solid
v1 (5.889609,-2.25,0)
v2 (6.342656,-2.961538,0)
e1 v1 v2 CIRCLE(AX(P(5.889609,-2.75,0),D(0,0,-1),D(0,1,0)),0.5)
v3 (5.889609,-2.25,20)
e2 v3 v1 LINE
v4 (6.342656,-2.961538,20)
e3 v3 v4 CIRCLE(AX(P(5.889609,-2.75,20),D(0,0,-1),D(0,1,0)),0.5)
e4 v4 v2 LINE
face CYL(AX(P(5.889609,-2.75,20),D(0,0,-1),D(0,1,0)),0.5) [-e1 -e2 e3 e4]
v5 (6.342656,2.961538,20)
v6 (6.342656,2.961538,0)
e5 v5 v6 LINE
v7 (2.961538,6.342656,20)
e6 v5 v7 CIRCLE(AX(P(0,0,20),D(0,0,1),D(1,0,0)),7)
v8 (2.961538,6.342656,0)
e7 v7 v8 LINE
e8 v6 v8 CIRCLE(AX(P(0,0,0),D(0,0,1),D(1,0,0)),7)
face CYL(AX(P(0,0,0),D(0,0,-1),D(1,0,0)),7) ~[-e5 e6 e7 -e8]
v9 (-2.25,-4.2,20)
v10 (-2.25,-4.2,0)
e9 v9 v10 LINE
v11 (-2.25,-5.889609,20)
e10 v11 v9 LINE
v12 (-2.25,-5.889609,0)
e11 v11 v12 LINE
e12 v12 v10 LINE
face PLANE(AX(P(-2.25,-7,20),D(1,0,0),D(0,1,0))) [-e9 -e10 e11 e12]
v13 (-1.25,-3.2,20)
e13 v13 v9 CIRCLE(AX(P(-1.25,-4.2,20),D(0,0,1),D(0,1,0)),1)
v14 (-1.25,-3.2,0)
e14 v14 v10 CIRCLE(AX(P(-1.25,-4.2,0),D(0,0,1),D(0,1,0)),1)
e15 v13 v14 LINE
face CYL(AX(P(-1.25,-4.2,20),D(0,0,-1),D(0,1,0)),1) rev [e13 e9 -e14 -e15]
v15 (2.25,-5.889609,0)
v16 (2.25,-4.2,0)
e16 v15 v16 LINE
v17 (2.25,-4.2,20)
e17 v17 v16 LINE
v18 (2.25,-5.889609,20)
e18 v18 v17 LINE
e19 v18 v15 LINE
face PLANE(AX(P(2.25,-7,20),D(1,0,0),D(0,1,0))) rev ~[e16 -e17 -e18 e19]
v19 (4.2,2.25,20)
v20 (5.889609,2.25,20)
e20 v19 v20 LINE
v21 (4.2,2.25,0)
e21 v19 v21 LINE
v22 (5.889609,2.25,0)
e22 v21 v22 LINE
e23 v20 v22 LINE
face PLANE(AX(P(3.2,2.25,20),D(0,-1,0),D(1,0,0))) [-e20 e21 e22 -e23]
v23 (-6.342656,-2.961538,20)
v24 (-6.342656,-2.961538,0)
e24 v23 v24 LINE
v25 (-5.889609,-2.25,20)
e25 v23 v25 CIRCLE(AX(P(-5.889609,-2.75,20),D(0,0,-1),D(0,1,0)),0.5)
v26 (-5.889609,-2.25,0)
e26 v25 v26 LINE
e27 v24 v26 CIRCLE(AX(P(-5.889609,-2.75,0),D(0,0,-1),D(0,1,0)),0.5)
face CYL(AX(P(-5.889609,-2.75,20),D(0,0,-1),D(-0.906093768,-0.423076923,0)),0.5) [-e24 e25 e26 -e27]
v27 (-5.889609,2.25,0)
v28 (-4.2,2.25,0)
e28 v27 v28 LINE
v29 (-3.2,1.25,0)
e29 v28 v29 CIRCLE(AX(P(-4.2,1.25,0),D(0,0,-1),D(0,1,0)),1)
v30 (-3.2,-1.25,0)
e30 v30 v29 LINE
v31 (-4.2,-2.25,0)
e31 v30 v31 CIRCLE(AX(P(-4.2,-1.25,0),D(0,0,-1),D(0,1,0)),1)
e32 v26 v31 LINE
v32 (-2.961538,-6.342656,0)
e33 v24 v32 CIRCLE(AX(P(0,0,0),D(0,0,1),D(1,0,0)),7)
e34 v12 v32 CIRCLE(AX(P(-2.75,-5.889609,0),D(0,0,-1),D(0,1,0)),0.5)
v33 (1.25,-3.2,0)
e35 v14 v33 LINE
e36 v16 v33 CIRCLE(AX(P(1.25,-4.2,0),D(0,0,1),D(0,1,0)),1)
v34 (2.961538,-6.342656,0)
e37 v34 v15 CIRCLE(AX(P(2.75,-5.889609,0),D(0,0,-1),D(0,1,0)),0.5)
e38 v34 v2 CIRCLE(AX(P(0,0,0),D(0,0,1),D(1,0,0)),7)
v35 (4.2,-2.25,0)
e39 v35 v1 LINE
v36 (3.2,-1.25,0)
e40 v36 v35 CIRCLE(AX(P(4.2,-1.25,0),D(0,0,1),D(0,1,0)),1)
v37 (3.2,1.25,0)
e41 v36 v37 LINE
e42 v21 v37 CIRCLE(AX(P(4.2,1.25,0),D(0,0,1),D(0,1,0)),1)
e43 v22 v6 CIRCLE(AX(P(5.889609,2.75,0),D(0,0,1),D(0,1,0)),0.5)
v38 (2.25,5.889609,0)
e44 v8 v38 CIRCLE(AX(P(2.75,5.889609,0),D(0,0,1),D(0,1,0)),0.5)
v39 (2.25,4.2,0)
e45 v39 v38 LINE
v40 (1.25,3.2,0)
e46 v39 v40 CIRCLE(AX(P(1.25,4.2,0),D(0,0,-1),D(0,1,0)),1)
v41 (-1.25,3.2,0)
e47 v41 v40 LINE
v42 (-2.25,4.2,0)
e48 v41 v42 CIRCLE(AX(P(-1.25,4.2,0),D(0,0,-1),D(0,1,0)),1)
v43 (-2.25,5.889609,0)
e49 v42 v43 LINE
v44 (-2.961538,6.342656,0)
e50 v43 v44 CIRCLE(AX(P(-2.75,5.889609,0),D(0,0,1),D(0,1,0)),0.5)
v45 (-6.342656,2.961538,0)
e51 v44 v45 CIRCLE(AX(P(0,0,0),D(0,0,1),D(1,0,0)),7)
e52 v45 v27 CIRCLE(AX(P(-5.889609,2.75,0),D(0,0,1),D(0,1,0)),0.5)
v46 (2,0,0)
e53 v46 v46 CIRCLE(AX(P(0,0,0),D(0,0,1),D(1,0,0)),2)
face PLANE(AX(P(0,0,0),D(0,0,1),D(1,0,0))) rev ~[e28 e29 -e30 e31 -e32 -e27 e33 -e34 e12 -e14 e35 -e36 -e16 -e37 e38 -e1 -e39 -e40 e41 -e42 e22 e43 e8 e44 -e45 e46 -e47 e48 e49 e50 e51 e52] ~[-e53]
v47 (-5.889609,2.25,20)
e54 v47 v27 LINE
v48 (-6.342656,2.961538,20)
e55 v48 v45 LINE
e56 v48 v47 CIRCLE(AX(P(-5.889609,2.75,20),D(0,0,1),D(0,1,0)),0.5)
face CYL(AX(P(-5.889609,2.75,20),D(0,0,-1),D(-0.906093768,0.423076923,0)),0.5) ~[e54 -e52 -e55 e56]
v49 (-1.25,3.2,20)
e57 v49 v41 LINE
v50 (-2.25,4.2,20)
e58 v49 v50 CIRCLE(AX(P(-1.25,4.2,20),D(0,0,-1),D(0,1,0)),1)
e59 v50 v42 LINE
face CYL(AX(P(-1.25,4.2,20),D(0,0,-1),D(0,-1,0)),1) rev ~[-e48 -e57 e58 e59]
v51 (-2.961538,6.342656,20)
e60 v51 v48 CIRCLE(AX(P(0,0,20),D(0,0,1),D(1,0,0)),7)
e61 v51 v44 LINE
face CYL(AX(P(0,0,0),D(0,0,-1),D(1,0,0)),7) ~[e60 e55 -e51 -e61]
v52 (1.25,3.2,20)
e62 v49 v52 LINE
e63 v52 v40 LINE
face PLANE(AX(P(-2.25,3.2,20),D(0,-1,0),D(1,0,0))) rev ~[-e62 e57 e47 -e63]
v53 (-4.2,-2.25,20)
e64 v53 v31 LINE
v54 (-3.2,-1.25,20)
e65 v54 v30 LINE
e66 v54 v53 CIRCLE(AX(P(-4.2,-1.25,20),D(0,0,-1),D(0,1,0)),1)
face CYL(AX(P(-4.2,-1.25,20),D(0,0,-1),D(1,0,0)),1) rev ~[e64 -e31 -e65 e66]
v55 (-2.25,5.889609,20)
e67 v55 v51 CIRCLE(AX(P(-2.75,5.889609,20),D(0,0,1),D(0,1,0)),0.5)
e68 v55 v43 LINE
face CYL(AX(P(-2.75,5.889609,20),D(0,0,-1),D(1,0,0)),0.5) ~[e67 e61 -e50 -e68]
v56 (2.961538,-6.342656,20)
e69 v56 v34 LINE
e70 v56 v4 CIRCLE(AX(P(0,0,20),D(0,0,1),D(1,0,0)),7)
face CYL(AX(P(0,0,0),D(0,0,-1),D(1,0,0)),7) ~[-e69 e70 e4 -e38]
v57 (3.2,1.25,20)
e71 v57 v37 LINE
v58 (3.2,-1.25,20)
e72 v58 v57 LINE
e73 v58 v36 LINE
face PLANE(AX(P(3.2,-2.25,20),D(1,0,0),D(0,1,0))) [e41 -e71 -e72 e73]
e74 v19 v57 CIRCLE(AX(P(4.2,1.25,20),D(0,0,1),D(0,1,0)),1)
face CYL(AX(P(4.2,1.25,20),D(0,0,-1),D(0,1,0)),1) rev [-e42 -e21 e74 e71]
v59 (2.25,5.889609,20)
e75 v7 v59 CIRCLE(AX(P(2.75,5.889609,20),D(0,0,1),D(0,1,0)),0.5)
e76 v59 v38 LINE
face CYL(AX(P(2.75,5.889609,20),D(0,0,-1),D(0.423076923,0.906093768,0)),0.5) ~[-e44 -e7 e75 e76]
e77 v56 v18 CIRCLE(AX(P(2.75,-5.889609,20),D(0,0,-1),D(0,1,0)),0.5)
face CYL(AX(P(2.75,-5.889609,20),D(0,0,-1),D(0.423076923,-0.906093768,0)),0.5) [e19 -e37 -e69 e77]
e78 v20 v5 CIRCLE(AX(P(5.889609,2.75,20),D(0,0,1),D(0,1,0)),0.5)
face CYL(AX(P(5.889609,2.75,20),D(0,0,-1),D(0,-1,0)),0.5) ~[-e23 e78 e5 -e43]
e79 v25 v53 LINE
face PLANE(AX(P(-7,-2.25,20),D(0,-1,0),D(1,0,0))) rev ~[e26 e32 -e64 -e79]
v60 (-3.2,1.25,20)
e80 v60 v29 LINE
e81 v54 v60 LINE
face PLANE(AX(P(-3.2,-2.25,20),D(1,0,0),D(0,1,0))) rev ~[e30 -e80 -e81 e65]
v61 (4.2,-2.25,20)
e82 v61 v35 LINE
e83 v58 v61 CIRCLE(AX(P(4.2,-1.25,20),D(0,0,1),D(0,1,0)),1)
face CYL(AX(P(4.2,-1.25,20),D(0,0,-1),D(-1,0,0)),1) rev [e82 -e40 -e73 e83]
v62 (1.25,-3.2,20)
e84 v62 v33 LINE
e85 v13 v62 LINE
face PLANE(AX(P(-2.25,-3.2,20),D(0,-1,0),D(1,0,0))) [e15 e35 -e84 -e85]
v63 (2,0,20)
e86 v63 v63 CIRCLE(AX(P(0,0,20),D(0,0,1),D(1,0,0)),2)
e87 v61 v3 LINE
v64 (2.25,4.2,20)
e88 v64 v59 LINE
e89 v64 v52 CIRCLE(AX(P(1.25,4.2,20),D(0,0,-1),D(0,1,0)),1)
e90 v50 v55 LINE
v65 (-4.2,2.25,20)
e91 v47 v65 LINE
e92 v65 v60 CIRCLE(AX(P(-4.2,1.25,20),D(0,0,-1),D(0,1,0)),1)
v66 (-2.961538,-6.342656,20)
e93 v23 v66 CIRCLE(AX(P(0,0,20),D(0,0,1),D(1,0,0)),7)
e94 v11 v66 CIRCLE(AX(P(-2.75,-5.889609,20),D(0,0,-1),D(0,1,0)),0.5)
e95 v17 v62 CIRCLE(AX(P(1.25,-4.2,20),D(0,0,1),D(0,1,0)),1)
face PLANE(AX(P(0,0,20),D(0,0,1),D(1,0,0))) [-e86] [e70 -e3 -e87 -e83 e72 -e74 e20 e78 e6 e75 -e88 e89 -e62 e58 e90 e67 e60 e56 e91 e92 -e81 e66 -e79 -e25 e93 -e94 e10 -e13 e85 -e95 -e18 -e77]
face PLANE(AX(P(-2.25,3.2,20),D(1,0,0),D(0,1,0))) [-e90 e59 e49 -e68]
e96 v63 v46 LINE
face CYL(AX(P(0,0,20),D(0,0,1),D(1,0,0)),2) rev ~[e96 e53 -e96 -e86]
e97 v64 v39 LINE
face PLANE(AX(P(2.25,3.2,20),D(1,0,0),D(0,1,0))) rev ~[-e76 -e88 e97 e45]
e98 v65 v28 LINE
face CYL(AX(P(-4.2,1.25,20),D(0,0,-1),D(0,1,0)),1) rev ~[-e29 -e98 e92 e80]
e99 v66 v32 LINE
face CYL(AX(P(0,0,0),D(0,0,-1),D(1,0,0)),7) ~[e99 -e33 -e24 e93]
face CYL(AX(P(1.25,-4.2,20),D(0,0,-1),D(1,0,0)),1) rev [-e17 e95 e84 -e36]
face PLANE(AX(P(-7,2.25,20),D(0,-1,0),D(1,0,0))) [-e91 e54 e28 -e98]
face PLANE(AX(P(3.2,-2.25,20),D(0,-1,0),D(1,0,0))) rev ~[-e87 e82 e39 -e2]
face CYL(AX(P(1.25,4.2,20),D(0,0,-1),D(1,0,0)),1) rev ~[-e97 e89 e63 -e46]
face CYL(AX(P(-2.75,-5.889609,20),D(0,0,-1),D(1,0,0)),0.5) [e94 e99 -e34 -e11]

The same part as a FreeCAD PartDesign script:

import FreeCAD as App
import Part
import Sketcher

V = App.Vector


def edges_at(feature, points):
    """Names of the edges that pass closest to the given points."""
    edges = feature.Shape.Edges
    near = lambda p: min(range(len(edges)), key=lambda i: edges[i].distToShape(Part.Vertex(*p))[0])
    return sorted({f"Edge{near(p) + 1}" for p in points})

doc = App.newDocument("Part")
params = doc.addObject("Spreadsheet::Sheet", "Params")
for row, (alias, value) in enumerate([
    ("sketch1_diameter", "14 mm"),
    ("pad1_length", "20 mm"),
    ("sketch2_width", "4.5 mm"),
    ("sketch2_width2", "3.8 mm"),
    ("pocket1_length", "20 mm"),
    ("sketch3_diameter", "4 mm"),
    ("pocket2_length", "20 mm"),
    ("fillet_radius", "1 mm"),
    ("fillet2_radius", "0.5 mm"),
], start=1):
    params.set(f"A{row}", alias)
    params.set(f"B{row}", "=" + value)
    params.setAlias(f"B{row}", alias)

body = doc.addObject("PartDesign::Body", "Body")

sketch1 = body.newObject("Sketcher::SketchObject", "Sketch")
sketch1.AttachmentSupport = (doc.getObject("XY_Plane"), [""])
sketch1.MapMode = "FlatFace"
sketch1.addGeometry(Part.Circle(V(0, 0, 0), V(0, 0, 1), 7), False)
sketch1.addConstraint([
    Sketcher.Constraint("Coincident", 0, 3, -1, 1),
    Sketcher.Constraint("Diameter", 0, 14.0),
])
sketch1.setExpression("Constraints[1]", "Params.sketch1_diameter")
pad1 = body.newObject("PartDesign::Pad", "Pad")
pad1.Profile = sketch1
pad1.setExpression("Length", "Params.pad1_length")

sketch2 = body.newObject("Sketcher::SketchObject", "Sketch001")
sketch2.AttachmentSupport = (doc.getObject("XY_Plane"), [""])
sketch2.MapMode = "FlatFace"
sketch2.AttachmentOffset = App.Placement(V(0, 0, 20), App.Rotation())
sketch2.addGeometry([
    Part.LineSegment(V(-2.25, 7, 0), V(-2.25, 3.2, 0)),
    Part.LineSegment(V(-2.25, 3.2, 0), V(2.25, 3.2, 0)),
    Part.LineSegment(V(2.25, 3.2, 0), V(2.25, 7, 0)),
    Part.LineSegment(V(2.25, 7, 0), V(-2.25, 7, 0)),
    Part.LineSegment(V(3.2, 2.25, 0), V(3.2, -2.25, 0)),
    Part.LineSegment(V(3.2, -2.25, 0), V(7, -2.25, 0)),
    Part.LineSegment(V(7, -2.25, 0), V(7, 2.25, 0)),
    Part.LineSegment(V(7, 2.25, 0), V(3.2, 2.25, 0)),
    Part.LineSegment(V(-2.25, -3.2, 0), V(-2.25, -7, 0)),
    Part.LineSegment(V(-2.25, -7, 0), V(2.25, -7, 0)),
    Part.LineSegment(V(2.25, -7, 0), V(2.25, -3.2, 0)),
    Part.LineSegment(V(2.25, -3.2, 0), V(-2.25, -3.2, 0)),
    Part.LineSegment(V(-7, 2.25, 0), V(-7, -2.25, 0)),
    Part.LineSegment(V(-7, -2.25, 0), V(-3.2, -2.25, 0)),
    Part.LineSegment(V(-3.2, -2.25, 0), V(-3.2, 2.25, 0)),
    Part.LineSegment(V(-3.2, 2.25, 0), V(-7, 2.25, 0)),
], False)
sketch2.addConstraint([
    Sketcher.Constraint("Coincident", 0, 2, 1, 1),
    Sketcher.Constraint("Coincident", 1, 2, 2, 1),
    Sketcher.Constraint("Coincident", 2, 2, 3, 1),
    Sketcher.Constraint("Coincident", 3, 2, 0, 1),
    Sketcher.Constraint("Coincident", 4, 2, 5, 1),
    Sketcher.Constraint("Coincident", 5, 2, 6, 1),
    Sketcher.Constraint("Coincident", 6, 2, 7, 1),
    Sketcher.Constraint("Coincident", 7, 2, 4, 1),
    Sketcher.Constraint("Coincident", 8, 2, 9, 1),
    Sketcher.Constraint("Coincident", 9, 2, 10, 1),
    Sketcher.Constraint("Coincident", 10, 2, 11, 1),
    Sketcher.Constraint("Coincident", 11, 2, 8, 1),
    Sketcher.Constraint("Coincident", 12, 2, 13, 1),
    Sketcher.Constraint("Coincident", 13, 2, 14, 1),
    Sketcher.Constraint("Coincident", 14, 2, 15, 1),
    Sketcher.Constraint("Coincident", 15, 2, 12, 1),
    Sketcher.Constraint("Vertical", 0),
    Sketcher.Constraint("Horizontal", 1),
    Sketcher.Constraint("Vertical", 2),
    Sketcher.Constraint("Horizontal", 3),
    Sketcher.Constraint("Vertical", 4),
    Sketcher.Constraint("Horizontal", 5),
    Sketcher.Constraint("Vertical", 6),
    Sketcher.Constraint("Horizontal", 7),
    Sketcher.Constraint("Vertical", 8),
    Sketcher.Constraint("Horizontal", 9),
    Sketcher.Constraint("Vertical", 10),
    Sketcher.Constraint("Horizontal", 11),
    Sketcher.Constraint("Vertical", 12),
    Sketcher.Constraint("Horizontal", 13),
    Sketcher.Constraint("Vertical", 14),
    Sketcher.Constraint("Horizontal", 15),
    Sketcher.Constraint("Symmetric", 2, 2, 8, 2, -1, 1),
    Sketcher.Constraint("Symmetric", 0, 2, 10, 2, -1, 1),
    Sketcher.Constraint("Symmetric", 6, 2, 12, 2, -1, 1),
    Sketcher.Constraint("Symmetric", 4, 2, 14, 2, -1, 1),
    Sketcher.Constraint("Horizontal", 5, 2, 12, 2),
    Sketcher.Constraint("Vertical", 3, 2, 8, 2),
    Sketcher.Constraint("Equal", 15, 0),
    Sketcher.Constraint("Equal", 11, 4),
    Sketcher.Constraint("DistanceX", 1, 1, 1, 2, 4.5),
    Sketcher.Constraint("DistanceX", 5, 1, 5, 2, 3.8),
    Sketcher.Constraint("DistanceY", -1, 1, 2, 2, 7.0),
    Sketcher.Constraint("DistanceX", -1, 1, 5, 2, 7.0),
])
sketch2.setExpression("Constraints[40]", "Params.sketch2_width")
sketch2.setExpression("Constraints[41]", "Params.sketch2_width2")
pocket1 = body.newObject("PartDesign::Pocket", "Pocket")
pocket1.Profile = sketch2
pocket1.setExpression("Length", "Params.pocket1_length")

sketch3 = body.newObject("Sketcher::SketchObject", "Sketch002")
sketch3.AttachmentSupport = (doc.getObject("XY_Plane"), [""])
sketch3.MapMode = "FlatFace"
sketch3.AttachmentOffset = App.Placement(V(0, 0, 20), App.Rotation())
sketch3.addGeometry(Part.Circle(V(0, 0, 0), V(0, 0, 1), 2), False)
sketch3.addConstraint([
    Sketcher.Constraint("Coincident", 0, 3, -1, 1),
    Sketcher.Constraint("Diameter", 0, 4.0),
])
sketch3.setExpression("Constraints[1]", "Params.sketch3_diameter")
pocket2 = body.newObject("PartDesign::Pocket", "Pocket001")
pocket2.Profile = sketch3
pocket2.setExpression("Length", "Params.pocket2_length")
doc.recompute()

fillet = body.newObject("PartDesign::Fillet", "Fillet")
fillet.Base = (pocket2, edges_at(pocket2, [
    (-2.25, 3.2, 10),
    (2.25, 3.2, 10),
    (3.2, 2.25, 10),
    (3.2, -2.25, 10),
    (2.25, -3.2, 10),
    (-2.25, -3.2, 10),
    (-3.2, -2.25, 10),
    (-3.2, 2.25, 10),
]))
fillet.setExpression("Radius", "Params.fillet_radius")
doc.recompute()

fillet2 = body.newObject("PartDesign::Fillet", "Fillet001")
fillet2.Base = (fillet, edges_at(fillet, [
    (-2.25, 6.629, 10),
    (2.25, 6.629, 10),
    (6.629, -2.25, 10),
    (6.629, 2.25, 10),
    (2.25, -6.629, 10),
    (-2.25, -6.629, 10),
    (-6.629, 2.25, 10),
    (-6.629, -2.25, 10),
]))
fillet2.setExpression("Radius", "Params.fillet2_radius")

doc.recompute()
